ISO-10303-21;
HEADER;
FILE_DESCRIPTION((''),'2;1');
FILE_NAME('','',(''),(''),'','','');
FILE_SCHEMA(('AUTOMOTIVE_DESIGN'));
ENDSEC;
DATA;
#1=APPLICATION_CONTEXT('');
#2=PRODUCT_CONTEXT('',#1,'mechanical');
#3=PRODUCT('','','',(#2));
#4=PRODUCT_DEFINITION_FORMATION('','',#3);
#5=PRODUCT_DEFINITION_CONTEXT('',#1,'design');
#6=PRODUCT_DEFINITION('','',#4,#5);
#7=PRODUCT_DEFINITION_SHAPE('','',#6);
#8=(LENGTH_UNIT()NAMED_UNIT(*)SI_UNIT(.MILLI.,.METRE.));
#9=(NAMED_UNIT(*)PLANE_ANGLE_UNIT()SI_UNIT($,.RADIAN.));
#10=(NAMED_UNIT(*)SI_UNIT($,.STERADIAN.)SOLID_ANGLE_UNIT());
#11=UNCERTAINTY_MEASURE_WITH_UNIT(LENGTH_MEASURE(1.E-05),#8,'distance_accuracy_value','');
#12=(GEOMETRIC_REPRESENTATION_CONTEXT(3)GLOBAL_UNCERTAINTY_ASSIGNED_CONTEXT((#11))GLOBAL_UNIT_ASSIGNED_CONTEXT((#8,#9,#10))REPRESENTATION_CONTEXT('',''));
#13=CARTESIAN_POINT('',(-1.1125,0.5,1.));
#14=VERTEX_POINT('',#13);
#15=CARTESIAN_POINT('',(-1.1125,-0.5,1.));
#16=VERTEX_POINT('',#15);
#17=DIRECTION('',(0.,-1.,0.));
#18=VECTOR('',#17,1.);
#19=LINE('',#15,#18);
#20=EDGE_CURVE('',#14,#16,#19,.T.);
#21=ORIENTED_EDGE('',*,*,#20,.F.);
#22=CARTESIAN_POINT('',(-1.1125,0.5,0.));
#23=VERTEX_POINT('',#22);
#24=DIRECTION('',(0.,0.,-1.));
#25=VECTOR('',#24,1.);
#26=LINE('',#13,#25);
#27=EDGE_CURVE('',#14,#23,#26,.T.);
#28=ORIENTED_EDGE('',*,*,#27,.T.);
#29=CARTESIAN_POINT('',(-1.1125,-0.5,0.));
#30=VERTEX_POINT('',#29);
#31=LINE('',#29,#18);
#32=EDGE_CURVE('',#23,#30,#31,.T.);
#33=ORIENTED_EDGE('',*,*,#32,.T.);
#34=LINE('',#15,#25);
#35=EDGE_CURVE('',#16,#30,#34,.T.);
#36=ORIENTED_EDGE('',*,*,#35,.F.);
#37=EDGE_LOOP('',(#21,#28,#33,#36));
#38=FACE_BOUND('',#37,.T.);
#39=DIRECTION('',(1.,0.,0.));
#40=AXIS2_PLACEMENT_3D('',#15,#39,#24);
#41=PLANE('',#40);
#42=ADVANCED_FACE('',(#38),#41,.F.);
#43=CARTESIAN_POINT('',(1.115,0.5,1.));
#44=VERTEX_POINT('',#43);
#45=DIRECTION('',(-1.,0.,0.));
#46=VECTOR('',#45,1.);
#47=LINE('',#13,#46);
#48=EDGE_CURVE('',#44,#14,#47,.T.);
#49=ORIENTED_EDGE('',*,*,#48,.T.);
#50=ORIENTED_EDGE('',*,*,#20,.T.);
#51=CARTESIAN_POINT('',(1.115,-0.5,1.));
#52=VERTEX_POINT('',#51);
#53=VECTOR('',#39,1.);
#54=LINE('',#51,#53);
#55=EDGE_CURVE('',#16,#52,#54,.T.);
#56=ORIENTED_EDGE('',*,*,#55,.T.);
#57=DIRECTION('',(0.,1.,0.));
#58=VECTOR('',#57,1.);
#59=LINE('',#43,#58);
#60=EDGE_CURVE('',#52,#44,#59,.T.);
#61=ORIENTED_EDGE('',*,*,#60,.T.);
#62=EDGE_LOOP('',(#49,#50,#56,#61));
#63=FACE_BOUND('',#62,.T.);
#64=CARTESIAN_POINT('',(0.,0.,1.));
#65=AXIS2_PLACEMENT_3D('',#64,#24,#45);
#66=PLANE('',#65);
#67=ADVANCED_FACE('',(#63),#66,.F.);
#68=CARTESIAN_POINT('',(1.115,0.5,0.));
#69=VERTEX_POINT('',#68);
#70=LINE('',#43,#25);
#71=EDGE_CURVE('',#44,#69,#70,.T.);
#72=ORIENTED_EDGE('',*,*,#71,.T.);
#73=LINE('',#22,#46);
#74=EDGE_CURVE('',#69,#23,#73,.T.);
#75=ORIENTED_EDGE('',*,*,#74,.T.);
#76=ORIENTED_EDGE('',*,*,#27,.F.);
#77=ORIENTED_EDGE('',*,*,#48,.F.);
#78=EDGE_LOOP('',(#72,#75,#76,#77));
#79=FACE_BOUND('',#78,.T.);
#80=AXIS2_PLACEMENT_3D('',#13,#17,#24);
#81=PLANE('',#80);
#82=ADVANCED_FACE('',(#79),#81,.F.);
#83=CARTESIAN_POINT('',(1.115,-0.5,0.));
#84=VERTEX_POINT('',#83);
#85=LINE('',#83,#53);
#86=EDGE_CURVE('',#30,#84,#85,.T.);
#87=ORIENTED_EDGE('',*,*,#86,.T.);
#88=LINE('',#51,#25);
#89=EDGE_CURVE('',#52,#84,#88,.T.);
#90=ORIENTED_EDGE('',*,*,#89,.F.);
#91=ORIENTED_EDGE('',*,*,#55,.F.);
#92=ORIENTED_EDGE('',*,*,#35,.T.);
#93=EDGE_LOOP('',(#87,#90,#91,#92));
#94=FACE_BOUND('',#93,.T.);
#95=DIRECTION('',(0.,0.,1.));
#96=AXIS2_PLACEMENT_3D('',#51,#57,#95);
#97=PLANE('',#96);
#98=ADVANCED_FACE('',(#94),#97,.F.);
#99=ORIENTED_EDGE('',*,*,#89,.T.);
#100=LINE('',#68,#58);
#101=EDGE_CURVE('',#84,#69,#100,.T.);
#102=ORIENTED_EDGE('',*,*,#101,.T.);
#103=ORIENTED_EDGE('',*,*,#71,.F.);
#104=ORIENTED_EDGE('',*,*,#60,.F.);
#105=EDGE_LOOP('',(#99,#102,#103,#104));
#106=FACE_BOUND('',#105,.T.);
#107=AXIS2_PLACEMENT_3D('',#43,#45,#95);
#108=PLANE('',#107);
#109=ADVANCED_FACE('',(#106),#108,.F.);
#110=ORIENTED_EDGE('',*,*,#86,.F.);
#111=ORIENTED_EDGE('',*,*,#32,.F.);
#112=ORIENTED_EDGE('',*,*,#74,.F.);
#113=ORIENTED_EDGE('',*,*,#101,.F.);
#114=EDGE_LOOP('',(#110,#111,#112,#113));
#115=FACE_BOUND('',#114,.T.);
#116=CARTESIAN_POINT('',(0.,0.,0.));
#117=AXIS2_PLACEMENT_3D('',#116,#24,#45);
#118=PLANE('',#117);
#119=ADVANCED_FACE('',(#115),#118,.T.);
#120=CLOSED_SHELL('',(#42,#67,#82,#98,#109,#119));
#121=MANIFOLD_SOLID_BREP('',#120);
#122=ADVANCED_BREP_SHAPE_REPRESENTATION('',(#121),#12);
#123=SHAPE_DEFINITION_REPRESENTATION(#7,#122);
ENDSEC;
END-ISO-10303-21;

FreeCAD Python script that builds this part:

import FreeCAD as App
import Part
import Sketcher

V = App.Vector


def add_polygon(sketch, points):
    """Adds a closed chain of lines whose ends are joined by coincident constraints."""
    first, n = sketch.GeometryCount, len(points)
    for a, b in zip(points, points[1:] + points[:1]):
        sketch.addGeometry(Part.LineSegment(App.Vector(*a, 0), App.Vector(*b, 0)), False)
    for i in range(n):
        sketch.addConstraint(Sketcher.Constraint("Coincident", first + i, 2, first + (i + 1) % n, 1))

doc = App.newDocument("Part")
body = doc.addObject("PartDesign::Body", "Body")

# Sketch on XY plane
sketch1 = doc.addObject("Sketcher::SketchObject", "Sketch")
body.addObject(sketch1)
sketch1.AttachmentSupport = (doc.XY_Plane, [""])
sketch1.MapMode = "FlatFace"
add_polygon(sketch1, [(-1.1, 0.5), (-1.1, -0.5), (1.1, -0.5), (1.1, 0.5)])  # lines 0-3
sketch1.addConstraint([
    Sketcher.Constraint("Vertical", 0),
    Sketcher.Constraint("Horizontal", 1),
    Sketcher.Constraint("Vertical", 2),
    Sketcher.Constraint("Horizontal", 3),
    Sketcher.Constraint("DistanceY", 0, 2, 0, 1, 1.0),
    Sketcher.Constraint("DistanceY", 0, 2, -1, 1, 0.5),
    Sketcher.Constraint("DistanceX", 1, 1, 1, 2, 2.2275),
    Sketcher.Constraint("DistanceX", -1, 1, 1, 2, 1.115),
])
pad1 = doc.addObject("PartDesign::Pad", "Pad")
body.addObject(pad1)
pad1.Profile = sketch1
pad1.Length = 1

doc.recompute()
